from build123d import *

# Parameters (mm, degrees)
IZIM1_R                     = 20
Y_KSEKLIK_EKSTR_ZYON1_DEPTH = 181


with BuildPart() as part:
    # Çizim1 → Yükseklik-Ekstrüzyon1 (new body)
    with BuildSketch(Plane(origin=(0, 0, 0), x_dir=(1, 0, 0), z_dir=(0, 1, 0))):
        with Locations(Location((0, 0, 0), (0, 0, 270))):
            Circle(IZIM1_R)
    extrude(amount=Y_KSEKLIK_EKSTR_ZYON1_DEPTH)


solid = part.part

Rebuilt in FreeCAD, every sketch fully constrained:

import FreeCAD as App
import Part
import Sketcher

V = App.Vector

doc = App.newDocument("Part")
body = doc.addObject("PartDesign::Body", "Body")

# Sketch on XZ plane
sketch1 = doc.addObject("Sketcher::SketchObject", "Sketch")
body.addObject(sketch1)
sketch1.AttachmentSupport = (doc.XZ_Plane, [""])
sketch1.MapMode = "FlatFace"
sketch1.addGeometry(Part.Circle(V(0, 0, 0), V(0, 0, 1), 20), False)
sketch1.addConstraint(Sketcher.Constraint("Coincident", 0, 3, -1, 1))
sketch1.addConstraint(Sketcher.Constraint("Diameter", 0, 40.0))
pad1 = doc.addObject("PartDesign::Pad", "Pad")
body.addObject(pad1)
pad1.Profile = sketch1
pad1.Length = 181
pad1.Reversed = True

doc.recompute()
